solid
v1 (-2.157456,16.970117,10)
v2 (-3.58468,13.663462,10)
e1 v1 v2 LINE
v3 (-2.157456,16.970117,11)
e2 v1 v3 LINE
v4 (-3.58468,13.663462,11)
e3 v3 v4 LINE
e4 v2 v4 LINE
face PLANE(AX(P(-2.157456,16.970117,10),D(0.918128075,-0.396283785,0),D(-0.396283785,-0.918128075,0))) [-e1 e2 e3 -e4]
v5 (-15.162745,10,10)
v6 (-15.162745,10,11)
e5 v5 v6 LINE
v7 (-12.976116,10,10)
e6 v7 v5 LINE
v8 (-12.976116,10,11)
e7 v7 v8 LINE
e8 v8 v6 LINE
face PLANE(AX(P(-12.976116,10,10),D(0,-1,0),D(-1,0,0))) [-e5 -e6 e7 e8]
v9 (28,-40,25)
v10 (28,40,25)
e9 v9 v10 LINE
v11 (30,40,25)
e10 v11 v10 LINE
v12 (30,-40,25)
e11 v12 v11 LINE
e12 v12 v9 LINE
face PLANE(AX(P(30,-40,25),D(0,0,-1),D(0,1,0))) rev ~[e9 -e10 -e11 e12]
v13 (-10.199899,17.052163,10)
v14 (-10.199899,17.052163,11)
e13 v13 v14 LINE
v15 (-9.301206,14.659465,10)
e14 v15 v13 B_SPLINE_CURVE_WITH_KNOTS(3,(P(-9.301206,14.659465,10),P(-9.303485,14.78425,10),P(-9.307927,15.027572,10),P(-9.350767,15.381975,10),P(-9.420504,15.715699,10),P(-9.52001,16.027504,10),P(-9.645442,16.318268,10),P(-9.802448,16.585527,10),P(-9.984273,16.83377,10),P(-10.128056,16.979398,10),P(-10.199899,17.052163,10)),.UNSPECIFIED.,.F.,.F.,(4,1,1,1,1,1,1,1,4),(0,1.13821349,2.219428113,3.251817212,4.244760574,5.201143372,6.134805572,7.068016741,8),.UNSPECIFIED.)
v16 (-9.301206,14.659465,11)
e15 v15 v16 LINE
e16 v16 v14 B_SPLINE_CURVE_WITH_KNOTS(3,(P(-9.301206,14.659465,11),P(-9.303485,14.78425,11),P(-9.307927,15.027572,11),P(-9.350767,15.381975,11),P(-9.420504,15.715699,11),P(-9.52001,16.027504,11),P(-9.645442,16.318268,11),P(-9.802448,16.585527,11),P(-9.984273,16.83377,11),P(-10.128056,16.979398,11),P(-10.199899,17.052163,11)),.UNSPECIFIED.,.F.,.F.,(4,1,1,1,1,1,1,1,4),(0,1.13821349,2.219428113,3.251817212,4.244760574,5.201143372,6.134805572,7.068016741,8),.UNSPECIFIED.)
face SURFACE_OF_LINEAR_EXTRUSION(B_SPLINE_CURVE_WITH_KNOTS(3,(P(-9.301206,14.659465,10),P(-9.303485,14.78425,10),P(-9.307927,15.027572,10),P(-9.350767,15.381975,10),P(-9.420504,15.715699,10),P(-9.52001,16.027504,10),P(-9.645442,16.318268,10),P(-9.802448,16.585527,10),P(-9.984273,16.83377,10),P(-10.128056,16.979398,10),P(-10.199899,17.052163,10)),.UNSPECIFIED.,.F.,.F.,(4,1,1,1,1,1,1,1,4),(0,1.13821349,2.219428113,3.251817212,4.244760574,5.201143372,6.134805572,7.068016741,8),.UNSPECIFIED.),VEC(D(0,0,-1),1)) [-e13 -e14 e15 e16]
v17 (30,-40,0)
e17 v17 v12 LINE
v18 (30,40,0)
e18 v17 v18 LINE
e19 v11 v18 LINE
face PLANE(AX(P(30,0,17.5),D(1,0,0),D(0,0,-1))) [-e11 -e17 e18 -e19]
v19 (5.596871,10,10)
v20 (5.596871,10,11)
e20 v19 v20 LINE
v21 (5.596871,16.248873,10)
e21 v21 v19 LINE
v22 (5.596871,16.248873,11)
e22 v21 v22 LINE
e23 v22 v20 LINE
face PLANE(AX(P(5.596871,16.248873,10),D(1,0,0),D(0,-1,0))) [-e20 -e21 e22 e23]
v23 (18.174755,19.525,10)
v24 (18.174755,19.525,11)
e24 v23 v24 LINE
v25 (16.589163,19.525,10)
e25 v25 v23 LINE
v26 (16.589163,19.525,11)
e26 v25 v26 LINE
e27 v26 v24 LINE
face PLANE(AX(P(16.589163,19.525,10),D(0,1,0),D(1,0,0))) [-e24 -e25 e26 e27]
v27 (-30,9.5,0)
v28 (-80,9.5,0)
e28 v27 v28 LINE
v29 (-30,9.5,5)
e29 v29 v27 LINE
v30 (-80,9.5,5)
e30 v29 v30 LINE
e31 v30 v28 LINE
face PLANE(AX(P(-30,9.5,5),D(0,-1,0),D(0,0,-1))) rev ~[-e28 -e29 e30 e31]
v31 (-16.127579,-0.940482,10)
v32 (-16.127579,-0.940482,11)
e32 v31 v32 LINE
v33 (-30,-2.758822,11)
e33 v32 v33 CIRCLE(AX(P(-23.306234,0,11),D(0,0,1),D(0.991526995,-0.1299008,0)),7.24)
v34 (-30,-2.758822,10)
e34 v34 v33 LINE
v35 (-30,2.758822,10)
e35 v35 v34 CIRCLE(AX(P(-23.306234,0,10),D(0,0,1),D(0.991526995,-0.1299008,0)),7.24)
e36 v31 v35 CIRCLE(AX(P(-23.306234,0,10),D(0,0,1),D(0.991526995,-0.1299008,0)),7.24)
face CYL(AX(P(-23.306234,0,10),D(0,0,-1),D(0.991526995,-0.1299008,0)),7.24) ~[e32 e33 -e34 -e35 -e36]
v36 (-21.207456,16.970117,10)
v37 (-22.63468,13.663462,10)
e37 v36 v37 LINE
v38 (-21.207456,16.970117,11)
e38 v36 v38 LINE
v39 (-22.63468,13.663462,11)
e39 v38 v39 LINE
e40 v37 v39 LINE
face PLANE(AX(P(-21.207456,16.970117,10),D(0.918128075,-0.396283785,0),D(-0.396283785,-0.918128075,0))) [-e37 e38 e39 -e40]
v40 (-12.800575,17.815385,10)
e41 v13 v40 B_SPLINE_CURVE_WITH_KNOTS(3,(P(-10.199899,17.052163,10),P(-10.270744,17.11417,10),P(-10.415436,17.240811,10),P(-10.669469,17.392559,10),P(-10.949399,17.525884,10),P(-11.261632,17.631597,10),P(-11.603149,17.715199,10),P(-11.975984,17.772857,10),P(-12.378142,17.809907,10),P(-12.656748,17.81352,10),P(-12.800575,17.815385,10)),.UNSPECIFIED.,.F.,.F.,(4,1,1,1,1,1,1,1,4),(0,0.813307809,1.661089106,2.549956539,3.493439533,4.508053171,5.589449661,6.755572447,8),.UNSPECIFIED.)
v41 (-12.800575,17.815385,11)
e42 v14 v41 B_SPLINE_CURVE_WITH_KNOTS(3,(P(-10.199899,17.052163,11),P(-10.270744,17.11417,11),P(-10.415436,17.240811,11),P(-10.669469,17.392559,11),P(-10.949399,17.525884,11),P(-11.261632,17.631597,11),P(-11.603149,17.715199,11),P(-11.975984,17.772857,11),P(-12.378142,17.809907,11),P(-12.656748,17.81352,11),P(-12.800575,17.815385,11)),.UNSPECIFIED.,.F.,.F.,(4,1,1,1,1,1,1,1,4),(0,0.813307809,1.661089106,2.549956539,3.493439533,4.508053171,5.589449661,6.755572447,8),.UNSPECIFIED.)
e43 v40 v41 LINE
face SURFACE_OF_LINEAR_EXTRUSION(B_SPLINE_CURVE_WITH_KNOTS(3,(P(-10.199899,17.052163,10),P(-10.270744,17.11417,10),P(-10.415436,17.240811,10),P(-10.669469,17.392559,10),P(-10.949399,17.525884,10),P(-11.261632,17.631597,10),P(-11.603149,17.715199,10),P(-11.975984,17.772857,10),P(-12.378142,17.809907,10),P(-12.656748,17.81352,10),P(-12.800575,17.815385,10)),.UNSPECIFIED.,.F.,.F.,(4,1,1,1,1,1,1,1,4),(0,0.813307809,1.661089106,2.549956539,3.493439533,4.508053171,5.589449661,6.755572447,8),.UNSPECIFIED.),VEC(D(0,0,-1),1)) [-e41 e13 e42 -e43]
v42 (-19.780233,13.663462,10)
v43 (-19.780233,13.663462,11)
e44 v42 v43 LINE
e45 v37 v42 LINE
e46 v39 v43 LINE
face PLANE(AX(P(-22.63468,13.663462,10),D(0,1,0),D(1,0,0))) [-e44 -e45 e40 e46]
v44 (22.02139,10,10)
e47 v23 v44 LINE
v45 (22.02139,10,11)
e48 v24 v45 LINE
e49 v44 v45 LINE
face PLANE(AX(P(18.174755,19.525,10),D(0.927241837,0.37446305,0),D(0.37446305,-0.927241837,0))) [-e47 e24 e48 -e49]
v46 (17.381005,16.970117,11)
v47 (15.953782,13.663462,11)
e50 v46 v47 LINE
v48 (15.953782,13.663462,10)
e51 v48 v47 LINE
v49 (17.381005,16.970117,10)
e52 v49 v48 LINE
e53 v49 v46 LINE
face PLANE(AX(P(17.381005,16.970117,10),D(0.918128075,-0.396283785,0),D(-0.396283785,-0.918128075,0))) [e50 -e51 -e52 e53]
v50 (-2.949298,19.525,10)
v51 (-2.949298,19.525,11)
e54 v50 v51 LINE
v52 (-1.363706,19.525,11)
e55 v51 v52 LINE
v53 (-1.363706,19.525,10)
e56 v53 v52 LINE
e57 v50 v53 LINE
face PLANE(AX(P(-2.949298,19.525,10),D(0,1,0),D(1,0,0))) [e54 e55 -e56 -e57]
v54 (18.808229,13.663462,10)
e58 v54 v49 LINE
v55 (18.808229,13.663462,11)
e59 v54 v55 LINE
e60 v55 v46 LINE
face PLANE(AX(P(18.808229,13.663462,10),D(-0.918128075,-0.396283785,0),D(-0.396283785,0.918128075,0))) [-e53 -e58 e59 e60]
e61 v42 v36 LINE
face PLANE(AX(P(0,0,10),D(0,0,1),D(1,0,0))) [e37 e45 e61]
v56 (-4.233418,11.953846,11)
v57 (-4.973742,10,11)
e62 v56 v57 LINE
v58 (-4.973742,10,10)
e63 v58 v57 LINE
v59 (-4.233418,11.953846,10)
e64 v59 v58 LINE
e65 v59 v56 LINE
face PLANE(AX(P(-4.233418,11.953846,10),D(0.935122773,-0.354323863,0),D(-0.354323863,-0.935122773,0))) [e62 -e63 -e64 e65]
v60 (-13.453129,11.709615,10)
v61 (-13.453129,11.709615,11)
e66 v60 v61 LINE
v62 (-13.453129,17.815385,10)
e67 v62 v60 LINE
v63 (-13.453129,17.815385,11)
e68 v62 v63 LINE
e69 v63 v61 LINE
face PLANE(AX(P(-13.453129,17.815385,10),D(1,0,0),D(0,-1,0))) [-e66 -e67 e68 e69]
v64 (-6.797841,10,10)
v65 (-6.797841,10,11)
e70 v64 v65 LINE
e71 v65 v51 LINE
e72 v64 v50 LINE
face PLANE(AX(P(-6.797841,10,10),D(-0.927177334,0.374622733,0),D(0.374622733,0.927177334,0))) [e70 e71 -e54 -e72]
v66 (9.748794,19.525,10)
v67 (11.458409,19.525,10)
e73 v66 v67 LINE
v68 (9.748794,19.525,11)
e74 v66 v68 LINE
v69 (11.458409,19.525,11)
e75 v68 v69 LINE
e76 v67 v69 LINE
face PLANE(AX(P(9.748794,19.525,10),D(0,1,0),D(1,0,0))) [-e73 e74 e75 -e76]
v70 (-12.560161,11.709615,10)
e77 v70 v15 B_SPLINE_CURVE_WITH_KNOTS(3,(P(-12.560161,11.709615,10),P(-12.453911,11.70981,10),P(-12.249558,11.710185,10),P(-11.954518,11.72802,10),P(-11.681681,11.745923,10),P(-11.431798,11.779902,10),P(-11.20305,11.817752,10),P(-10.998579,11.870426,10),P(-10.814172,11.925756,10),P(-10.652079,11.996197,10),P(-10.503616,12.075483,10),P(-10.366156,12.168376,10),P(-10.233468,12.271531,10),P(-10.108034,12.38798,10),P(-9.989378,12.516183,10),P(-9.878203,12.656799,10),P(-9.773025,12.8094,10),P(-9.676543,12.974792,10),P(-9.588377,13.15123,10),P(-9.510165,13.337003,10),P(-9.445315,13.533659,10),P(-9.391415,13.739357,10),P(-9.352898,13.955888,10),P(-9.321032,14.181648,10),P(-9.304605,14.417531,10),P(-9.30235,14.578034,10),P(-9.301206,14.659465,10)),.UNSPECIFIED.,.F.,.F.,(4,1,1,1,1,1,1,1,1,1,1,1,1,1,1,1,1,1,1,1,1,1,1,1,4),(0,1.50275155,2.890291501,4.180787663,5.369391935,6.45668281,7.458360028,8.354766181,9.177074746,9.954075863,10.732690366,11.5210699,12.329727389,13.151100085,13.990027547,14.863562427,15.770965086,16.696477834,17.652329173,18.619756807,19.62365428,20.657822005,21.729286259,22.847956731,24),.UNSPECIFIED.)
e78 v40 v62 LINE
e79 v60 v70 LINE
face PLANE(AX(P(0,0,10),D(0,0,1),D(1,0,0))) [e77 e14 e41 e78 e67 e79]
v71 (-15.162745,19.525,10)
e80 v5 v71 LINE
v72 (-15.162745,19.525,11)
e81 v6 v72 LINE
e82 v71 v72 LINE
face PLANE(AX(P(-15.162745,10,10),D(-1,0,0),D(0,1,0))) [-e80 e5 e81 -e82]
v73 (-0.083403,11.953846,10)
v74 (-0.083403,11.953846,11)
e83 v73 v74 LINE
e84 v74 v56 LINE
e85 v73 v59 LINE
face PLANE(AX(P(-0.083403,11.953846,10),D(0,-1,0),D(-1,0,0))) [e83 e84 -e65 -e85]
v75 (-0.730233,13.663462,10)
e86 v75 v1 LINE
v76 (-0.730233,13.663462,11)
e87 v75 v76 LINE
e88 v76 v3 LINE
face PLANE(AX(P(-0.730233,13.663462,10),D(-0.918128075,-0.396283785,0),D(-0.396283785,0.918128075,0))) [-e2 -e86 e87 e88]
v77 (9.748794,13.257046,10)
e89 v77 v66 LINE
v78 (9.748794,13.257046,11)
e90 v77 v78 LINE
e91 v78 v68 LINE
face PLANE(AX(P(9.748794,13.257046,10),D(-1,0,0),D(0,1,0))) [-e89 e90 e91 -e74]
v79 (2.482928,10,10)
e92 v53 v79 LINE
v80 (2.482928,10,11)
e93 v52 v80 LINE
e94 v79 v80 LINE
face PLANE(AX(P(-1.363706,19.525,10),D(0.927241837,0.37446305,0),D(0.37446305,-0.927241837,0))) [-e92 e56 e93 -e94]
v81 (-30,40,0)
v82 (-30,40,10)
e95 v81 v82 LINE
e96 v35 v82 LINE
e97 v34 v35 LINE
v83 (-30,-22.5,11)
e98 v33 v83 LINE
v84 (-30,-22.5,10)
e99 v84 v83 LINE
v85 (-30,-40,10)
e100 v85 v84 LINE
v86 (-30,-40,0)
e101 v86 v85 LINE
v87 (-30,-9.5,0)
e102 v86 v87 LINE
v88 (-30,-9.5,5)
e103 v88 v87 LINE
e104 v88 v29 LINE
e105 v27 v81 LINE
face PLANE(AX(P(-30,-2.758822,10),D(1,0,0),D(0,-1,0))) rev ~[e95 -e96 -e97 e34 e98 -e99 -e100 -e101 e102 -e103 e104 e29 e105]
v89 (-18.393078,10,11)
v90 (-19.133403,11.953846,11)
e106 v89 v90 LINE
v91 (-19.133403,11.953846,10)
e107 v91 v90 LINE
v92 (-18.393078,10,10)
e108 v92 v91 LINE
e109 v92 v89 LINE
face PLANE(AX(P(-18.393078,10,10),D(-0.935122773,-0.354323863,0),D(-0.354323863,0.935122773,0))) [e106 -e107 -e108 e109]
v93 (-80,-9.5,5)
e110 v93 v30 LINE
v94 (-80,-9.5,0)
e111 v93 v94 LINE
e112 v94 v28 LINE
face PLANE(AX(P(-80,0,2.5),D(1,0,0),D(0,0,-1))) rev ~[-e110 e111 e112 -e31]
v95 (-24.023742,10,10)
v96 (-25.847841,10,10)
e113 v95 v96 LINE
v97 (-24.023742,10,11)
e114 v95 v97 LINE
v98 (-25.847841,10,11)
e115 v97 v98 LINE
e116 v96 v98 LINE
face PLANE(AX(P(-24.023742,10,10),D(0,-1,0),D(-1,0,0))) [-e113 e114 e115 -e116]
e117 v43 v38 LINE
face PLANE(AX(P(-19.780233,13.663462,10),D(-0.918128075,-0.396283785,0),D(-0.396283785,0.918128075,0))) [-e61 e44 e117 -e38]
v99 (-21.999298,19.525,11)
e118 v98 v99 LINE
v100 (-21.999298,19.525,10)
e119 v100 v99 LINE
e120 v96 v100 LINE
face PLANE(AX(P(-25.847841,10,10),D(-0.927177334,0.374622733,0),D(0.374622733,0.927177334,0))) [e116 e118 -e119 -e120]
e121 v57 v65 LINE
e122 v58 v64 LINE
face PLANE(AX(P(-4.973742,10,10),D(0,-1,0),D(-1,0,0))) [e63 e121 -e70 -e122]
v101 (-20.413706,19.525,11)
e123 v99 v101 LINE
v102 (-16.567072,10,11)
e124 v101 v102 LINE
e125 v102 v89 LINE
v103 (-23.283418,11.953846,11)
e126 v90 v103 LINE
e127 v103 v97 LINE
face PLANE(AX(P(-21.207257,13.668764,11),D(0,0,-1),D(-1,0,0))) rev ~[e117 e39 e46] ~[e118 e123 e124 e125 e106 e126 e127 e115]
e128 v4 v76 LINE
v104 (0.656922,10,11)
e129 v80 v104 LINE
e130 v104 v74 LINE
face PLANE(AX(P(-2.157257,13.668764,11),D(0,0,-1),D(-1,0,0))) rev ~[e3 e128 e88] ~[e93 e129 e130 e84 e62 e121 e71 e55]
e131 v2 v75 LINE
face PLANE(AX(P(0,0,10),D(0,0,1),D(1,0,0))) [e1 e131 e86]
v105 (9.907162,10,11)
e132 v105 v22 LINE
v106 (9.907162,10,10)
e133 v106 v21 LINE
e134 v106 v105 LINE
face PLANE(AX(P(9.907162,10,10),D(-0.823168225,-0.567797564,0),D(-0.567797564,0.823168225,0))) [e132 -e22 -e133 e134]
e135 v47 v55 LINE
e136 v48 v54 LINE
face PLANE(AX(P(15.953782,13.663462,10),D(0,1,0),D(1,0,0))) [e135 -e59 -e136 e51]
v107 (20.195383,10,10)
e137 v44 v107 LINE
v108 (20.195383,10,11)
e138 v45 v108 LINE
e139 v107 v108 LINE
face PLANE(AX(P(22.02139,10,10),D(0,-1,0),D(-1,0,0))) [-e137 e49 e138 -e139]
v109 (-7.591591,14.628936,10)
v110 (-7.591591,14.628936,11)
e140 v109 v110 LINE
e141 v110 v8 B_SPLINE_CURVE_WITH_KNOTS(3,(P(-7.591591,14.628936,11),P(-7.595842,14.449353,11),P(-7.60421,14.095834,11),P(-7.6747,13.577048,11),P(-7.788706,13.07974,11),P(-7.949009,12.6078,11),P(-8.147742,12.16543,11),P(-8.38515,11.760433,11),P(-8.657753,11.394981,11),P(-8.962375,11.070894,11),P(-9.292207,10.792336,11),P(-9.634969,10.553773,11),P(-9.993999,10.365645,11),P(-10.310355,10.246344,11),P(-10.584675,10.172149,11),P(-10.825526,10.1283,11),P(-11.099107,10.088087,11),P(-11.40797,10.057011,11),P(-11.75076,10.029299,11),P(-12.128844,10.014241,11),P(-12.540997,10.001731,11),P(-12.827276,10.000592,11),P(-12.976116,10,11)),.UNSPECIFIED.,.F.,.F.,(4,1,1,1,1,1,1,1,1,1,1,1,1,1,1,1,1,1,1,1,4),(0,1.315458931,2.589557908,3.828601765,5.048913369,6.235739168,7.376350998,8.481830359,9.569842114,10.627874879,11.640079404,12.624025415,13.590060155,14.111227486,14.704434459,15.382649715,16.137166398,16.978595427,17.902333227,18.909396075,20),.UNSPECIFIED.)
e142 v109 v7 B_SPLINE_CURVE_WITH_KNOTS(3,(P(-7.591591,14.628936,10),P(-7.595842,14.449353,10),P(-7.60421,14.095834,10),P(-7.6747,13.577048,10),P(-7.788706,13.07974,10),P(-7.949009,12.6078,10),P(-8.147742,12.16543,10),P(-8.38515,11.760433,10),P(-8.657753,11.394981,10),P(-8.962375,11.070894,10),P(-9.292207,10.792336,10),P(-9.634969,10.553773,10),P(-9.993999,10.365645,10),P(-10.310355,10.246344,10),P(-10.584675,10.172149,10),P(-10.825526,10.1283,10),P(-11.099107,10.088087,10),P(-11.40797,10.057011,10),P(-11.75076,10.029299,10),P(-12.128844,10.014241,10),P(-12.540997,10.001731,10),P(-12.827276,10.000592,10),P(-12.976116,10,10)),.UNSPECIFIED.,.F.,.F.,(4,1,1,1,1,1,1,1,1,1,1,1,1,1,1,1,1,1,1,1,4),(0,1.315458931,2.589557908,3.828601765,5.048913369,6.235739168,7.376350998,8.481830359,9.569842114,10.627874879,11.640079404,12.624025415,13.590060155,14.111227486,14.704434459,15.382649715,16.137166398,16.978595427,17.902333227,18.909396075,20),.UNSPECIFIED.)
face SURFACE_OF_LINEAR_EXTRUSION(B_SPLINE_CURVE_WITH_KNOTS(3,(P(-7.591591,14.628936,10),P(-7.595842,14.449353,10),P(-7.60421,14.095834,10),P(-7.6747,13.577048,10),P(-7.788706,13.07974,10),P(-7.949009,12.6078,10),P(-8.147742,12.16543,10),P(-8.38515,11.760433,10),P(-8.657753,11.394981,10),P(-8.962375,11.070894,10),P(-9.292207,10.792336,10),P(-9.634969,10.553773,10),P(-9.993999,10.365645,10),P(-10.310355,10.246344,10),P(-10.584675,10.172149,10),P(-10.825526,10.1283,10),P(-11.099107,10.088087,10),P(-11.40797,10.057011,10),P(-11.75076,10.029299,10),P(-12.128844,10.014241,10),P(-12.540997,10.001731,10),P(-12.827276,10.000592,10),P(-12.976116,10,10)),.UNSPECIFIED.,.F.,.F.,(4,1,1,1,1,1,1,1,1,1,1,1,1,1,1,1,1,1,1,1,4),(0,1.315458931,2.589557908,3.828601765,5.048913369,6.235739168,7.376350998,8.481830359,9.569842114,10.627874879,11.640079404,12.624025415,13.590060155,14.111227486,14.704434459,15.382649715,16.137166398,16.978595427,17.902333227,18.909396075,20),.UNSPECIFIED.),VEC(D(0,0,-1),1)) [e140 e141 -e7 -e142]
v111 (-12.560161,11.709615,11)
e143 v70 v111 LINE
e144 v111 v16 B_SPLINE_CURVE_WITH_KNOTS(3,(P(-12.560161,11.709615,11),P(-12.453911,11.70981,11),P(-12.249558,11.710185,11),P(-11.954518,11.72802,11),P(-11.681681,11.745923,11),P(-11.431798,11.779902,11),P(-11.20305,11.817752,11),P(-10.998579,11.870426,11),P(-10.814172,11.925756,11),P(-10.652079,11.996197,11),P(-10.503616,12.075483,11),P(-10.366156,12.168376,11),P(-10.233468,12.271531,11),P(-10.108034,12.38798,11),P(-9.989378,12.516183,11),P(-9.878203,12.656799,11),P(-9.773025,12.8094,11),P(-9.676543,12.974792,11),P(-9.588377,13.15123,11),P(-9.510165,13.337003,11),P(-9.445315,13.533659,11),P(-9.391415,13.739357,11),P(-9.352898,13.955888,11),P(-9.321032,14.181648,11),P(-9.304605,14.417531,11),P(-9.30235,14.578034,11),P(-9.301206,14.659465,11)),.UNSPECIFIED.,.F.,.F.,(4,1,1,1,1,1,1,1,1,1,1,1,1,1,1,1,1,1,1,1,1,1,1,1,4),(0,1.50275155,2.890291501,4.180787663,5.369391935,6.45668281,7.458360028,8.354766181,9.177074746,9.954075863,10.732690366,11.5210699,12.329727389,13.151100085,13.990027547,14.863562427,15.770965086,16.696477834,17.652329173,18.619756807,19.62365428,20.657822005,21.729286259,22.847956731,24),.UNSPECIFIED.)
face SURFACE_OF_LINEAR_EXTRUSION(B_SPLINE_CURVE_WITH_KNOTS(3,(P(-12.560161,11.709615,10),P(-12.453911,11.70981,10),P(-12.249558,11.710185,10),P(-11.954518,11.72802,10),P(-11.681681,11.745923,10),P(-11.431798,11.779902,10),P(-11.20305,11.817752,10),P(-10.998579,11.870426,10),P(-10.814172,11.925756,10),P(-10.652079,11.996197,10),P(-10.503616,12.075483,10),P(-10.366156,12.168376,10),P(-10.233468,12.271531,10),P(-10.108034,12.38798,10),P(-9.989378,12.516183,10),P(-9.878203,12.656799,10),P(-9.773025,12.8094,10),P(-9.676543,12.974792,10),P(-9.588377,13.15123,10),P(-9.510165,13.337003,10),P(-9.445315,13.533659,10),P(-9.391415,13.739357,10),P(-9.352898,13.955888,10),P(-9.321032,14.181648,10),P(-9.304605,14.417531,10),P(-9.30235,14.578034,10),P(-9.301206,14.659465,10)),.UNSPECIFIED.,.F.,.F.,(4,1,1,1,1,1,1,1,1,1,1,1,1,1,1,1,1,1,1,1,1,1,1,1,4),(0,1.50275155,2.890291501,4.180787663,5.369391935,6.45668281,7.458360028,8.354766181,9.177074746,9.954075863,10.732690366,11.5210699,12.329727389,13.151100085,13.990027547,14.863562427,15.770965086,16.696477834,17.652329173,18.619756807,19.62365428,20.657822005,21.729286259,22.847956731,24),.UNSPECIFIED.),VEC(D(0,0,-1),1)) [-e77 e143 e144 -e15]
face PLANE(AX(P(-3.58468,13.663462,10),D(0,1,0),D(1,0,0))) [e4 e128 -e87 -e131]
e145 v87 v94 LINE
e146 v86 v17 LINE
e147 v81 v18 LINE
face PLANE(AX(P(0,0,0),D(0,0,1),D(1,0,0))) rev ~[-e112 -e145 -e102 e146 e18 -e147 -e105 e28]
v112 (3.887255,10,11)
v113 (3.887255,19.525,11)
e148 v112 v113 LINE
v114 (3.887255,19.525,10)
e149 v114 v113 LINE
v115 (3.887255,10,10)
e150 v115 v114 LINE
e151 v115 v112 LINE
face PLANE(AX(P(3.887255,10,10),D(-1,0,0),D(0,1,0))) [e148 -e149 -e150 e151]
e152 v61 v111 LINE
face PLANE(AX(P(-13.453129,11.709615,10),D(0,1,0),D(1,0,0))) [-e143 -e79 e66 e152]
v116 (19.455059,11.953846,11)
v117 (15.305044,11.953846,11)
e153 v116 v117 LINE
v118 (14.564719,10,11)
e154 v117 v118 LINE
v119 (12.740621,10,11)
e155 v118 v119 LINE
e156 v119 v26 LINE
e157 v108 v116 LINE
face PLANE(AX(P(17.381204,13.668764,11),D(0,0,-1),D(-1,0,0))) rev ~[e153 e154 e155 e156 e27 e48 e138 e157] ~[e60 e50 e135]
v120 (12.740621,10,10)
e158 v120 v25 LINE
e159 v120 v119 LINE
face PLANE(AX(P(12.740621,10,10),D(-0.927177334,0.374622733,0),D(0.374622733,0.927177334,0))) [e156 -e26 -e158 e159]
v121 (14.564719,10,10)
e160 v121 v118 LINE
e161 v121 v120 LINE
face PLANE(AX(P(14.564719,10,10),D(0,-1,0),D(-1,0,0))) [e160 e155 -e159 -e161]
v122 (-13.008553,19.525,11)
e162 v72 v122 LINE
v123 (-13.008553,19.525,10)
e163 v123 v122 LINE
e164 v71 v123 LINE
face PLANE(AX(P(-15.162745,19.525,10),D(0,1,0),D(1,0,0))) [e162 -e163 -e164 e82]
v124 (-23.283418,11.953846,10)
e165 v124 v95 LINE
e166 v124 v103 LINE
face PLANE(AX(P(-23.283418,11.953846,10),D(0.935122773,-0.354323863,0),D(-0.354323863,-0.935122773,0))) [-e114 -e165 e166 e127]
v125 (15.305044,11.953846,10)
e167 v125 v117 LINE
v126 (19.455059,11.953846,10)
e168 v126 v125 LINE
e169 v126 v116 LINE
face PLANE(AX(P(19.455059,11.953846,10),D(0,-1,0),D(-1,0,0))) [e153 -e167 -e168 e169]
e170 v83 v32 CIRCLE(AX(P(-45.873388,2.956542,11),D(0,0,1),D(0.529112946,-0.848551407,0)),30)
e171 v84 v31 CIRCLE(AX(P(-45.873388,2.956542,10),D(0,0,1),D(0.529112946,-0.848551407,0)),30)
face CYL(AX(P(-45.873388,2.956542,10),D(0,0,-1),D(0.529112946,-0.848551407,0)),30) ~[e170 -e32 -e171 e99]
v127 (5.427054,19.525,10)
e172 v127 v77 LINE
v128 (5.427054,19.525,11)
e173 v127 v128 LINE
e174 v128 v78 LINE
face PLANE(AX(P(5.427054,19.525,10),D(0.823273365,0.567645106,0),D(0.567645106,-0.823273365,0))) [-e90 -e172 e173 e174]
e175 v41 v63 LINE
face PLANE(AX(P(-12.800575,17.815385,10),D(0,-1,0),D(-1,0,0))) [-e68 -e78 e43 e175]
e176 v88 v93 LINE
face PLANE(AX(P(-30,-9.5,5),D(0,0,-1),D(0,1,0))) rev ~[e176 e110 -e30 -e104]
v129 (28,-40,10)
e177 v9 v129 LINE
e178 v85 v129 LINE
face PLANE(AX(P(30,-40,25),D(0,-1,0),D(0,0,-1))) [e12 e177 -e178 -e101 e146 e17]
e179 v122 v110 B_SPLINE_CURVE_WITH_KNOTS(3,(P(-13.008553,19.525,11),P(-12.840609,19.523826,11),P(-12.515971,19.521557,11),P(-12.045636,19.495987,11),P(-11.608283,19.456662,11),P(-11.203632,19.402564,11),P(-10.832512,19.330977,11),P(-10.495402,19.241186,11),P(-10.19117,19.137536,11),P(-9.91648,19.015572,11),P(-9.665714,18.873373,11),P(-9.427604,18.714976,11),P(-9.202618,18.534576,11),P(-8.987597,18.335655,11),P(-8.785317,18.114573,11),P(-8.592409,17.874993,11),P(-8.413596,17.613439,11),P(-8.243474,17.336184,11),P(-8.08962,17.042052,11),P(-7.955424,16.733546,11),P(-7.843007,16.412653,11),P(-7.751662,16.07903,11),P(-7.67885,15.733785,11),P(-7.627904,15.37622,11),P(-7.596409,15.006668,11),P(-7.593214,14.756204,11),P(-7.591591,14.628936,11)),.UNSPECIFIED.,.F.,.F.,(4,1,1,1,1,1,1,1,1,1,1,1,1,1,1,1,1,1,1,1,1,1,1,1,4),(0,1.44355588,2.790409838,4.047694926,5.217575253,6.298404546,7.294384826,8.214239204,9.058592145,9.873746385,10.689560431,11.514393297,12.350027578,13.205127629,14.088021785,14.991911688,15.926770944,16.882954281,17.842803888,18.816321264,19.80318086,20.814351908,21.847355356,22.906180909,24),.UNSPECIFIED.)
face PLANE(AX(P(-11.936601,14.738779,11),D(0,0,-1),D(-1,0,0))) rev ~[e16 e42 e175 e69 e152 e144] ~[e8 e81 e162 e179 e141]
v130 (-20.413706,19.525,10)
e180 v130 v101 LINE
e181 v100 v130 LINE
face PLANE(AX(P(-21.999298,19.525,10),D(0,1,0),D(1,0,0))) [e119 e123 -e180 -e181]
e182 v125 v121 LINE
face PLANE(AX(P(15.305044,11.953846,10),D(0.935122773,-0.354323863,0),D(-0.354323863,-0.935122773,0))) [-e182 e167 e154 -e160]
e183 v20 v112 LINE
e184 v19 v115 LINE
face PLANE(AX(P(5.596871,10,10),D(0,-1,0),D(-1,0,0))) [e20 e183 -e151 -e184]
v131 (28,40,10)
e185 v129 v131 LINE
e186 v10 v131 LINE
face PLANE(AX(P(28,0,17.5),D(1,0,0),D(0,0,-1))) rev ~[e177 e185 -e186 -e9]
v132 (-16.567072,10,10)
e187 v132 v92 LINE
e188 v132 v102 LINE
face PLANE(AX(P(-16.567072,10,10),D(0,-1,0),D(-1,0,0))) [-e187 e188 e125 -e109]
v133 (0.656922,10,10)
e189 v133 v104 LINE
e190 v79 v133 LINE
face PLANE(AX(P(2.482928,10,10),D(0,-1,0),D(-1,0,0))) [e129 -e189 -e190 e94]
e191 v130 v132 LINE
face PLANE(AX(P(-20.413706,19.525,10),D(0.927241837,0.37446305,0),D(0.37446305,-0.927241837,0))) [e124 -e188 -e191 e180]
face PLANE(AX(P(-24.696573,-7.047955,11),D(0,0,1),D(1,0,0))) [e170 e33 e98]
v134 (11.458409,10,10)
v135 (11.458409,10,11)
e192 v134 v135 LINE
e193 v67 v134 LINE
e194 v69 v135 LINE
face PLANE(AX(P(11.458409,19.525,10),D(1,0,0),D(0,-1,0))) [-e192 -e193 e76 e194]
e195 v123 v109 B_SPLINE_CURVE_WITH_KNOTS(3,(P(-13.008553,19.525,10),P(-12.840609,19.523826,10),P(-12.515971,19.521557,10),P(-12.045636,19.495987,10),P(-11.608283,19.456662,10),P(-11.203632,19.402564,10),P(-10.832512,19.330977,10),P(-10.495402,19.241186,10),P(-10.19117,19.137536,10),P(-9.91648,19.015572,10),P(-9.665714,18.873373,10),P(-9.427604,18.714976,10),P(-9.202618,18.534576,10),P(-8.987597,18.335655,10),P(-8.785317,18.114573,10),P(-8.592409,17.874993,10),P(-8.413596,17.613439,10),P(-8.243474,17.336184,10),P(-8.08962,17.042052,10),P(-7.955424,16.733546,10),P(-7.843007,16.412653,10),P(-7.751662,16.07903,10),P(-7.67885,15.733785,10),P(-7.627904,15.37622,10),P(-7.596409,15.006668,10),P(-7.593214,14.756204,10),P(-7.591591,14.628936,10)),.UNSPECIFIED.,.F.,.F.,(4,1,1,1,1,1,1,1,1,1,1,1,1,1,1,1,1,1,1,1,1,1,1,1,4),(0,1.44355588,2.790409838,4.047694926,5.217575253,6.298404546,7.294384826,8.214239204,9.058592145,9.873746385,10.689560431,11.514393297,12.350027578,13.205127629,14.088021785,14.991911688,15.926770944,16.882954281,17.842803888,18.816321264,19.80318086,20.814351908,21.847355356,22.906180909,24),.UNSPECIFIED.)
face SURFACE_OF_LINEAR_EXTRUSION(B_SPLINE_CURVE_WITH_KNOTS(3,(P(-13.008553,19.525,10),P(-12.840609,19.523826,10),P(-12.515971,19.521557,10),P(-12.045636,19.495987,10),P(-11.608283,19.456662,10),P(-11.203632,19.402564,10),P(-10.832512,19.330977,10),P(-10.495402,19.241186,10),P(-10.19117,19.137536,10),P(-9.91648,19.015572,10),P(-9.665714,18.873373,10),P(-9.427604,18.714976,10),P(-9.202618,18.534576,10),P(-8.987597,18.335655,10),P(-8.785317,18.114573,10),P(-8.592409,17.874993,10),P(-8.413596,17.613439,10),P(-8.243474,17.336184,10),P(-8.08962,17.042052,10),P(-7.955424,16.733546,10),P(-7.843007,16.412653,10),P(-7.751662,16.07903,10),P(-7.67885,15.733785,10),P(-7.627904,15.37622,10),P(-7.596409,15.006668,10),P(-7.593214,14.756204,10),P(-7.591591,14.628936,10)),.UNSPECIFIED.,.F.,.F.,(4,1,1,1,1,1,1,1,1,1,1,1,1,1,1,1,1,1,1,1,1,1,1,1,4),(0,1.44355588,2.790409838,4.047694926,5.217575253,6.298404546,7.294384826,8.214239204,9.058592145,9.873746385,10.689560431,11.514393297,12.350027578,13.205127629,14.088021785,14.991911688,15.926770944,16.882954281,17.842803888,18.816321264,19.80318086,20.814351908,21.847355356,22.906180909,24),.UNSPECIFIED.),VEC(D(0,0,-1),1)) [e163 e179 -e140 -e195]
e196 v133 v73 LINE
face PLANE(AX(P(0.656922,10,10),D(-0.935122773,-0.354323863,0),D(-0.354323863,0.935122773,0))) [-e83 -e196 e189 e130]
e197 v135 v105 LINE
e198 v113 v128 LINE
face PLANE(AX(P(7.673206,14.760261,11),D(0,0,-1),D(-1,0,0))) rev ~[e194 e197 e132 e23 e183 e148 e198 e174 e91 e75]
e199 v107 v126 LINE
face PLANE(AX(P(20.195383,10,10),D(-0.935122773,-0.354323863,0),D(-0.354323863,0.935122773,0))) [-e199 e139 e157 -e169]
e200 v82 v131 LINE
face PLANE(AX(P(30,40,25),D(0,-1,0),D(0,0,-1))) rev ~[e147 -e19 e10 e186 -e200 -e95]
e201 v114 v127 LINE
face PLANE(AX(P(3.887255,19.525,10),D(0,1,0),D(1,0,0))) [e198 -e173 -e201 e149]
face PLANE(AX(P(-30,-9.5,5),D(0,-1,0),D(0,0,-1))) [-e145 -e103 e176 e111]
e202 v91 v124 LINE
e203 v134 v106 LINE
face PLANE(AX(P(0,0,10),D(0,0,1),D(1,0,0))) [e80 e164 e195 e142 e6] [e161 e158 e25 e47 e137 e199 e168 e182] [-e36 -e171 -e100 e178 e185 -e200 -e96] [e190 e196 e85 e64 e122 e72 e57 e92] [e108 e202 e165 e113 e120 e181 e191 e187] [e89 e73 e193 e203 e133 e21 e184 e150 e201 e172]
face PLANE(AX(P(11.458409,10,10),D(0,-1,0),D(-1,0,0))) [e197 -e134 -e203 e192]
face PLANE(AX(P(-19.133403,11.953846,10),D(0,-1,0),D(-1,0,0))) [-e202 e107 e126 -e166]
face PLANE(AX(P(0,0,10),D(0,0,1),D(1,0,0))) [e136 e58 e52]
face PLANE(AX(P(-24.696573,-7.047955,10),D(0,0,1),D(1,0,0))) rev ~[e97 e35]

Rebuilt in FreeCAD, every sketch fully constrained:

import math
import FreeCAD as App
import Part
import Sketcher
from FreeCAD import Vector
Q = App.Units.Quantity

doc = App.newDocument("Part")
body = doc.addObject("PartDesign::Body", "Body")

sketch1 = body.newObject("Sketcher::SketchObject", "Sketch")
sketch1.AttachmentSupport = (doc.getObject("XY_Plane"), [""])
sketch1.MapMode = "FlatFace"
sketch1.addGeometry([
    Part.LineSegment(Vector(-30, 40, 0), Vector(-30, -40, 0)),
    Part.LineSegment(Vector(-30, -40, 0), Vector(30, -40, 0)),
    Part.LineSegment(Vector(30, -40, 0), Vector(30, 40, 0)),
    Part.LineSegment(Vector(30, 40, 0), Vector(-30, 40, 0)),
], False)
sketch1.addConstraint([
    Sketcher.Constraint("Coincident", 0, 2, 1, 1),
    Sketcher.Constraint("Coincident", 1, 2, 2, 1),
    Sketcher.Constraint("Coincident", 2, 2, 3, 1),
    Sketcher.Constraint("Coincident", 3, 2, 0, 1),
    Sketcher.Constraint("Vertical", 0),
    Sketcher.Constraint("Horizontal", 1),
    Sketcher.Constraint("Vertical", 2),
    Sketcher.Constraint("Horizontal", 3),
    Sketcher.Constraint("Symmetric", 0, 2, 2, 2, -1, 1),
    Sketcher.Constraint("DistanceX", 1, 1, 1, 2, Q("60 mm")),
    Sketcher.Constraint("DistanceY", 0, 2, 0, 1, Q("80 mm")),
])
pad1 = body.newObject("PartDesign::Pad", "Pad")
pad1.Profile = sketch1
pad1.Length = 10

sketch2 = body.newObject("Sketcher::SketchObject", "Sketch001")
sketch2.AttachmentSupport = (doc.getObject("YZ_Plane"), [""])
sketch2.MapMode = "FlatFace"
sketch2.AttachmentOffset = App.Placement(Vector(0, 0, -30), App.Rotation())
sketch2.addGeometry([
    Part.LineSegment(Vector(10, 5, 0), Vector(-10, 5, 0)),
    Part.LineSegment(Vector(-10, 5, 0), Vector(-10, 0, 0)),
    Part.LineSegment(Vector(-10, 0, 0), Vector(10, 0, 0)),
    Part.LineSegment(Vector(10, 0, 0), Vector(10, 5, 0)),
], False)
sketch2.addConstraint([
    Sketcher.Constraint("Coincident", 0, 2, 1, 1),
    Sketcher.Constraint("Coincident", 1, 2, 2, 1),
    Sketcher.Constraint("Coincident", 2, 2, 3, 1),
    Sketcher.Constraint("Coincident", 3, 2, 0, 1),
    Sketcher.Constraint("Horizontal", 0),
    Sketcher.Constraint("Vertical", 1),
    Sketcher.Constraint("Horizontal", 2),
    Sketcher.Constraint("Vertical", 3),
    Sketcher.Constraint("Symmetric", 1, 2, 2, 2, -1, 1),
    Sketcher.Constraint("DistanceX", 0, 2, 0, 1, Q("19 mm")),
    Sketcher.Constraint("DistanceY", 1, 2, 1, 1, Q("5 mm")),
])
pad2 = body.newObject("PartDesign::Pad", "Pad001")
pad2.Profile = sketch2
pad2.Length = 50
pad2.Reversed = True

sketch3 = body.newObject("Sketcher::SketchObject", "Sketch002")
sketch3.AttachmentSupport = (doc.getObject("YZ_Plane"), [""])
sketch3.MapMode = "FlatFace"
sketch3.AttachmentOffset = App.Placement(Vector(0, 0, 30), App.Rotation())
sketch3.addGeometry([
    Part.LineSegment(Vector(40, 25, 0), Vector(-40, 25, 0)),
    Part.LineSegment(Vector(-40, 25, 0), Vector(-40, 10, 0)),
    Part.LineSegment(Vector(-40, 10, 0), Vector(40, 10, 0)),
    Part.LineSegment(Vector(40, 10, 0), Vector(40, 25, 0)),
], False)
sketch3.addConstraint([
    Sketcher.Constraint("Coincident", 0, 2, 1, 1),
    Sketcher.Constraint("Coincident", 1, 2, 2, 1),
    Sketcher.Constraint("Coincident", 2, 2, 3, 1),
    Sketcher.Constraint("Coincident", 3, 2, 0, 1),
    Sketcher.Constraint("Horizontal", 0),
    Sketcher.Constraint("Vertical", 1),
    Sketcher.Constraint("Horizontal", 2),
    Sketcher.Constraint("Vertical", 3),
    Sketcher.Constraint("DistanceX", 0, 2, 0, 1, Q("80 mm")),
    Sketcher.Constraint("DistanceY", 1, 2, 1, 1, Q("15 mm")),
    Sketcher.Constraint("DistanceX", 0, 2, -1, 1, Q("40 mm")),
    Sketcher.Constraint("DistanceY", -1, 1, 0, 2, Q("25 mm")),
])
pad3 = body.newObject("PartDesign::Pad", "Pad002")
pad3.Profile = sketch3
pad3.Length = 2
pad3.Reversed = True

sketch4 = body.newObject("Sketcher::SketchObject", "Sketch003")
sketch4.AttachmentSupport = (doc.getObject("XY_Plane"), [""])
sketch4.MapMode = "FlatFace"
sketch4.AttachmentOffset = App.Placement(Vector(0, 0, 10), App.Rotation())
sketch4.addGeometry([
    Part.LineSegment(Vector(-30, -2.758822, 0), Vector(-30, -22.5, 0)),
    Part.ArcOfCircle(Part.Circle(Vector(-45.873388, 2.956542, 0), Vector(0, 0, 1), 30), math.radians(-58.05446), math.radians(-7.46386)),
    Part.ArcOfCircle(Part.Circle(Vector(-23.306234, 0, 0), Vector(0, 0, 1), 7.24), math.radians(-7.46386), math.radians(202.398905)),
    Part.LineSegment(Vector(-20.413706, 19.525, 0), Vector(-21.999298, 19.525, 0)),
    Part.LineSegment(Vector(-21.999298, 19.525, 0), Vector(-25.847841, 10, 0)),
    Part.LineSegment(Vector(-25.847841, 10, 0), Vector(-24.023742, 10, 0)),
    Part.LineSegment(Vector(-24.023742, 10, 0), Vector(-23.283418, 11.953846, 0)),
    Part.LineSegment(Vector(-23.283418, 11.953846, 0), Vector(-19.133403, 11.953846, 0)),
    Part.LineSegment(Vector(-19.133403, 11.953846, 0), Vector(-18.393078, 10, 0)),
    Part.LineSegment(Vector(-18.393078, 10, 0), Vector(-16.567072, 10, 0)),
    Part.LineSegment(Vector(-16.567072, 10, 0), Vector(-20.413706, 19.525, 0)),
    Part.LineSegment(Vector(-21.207456, 16.970117, 0), Vector(-19.780233, 13.663462, 0)),
    Part.LineSegment(Vector(-19.780233, 13.663462, 0), Vector(-22.63468, 13.663462, 0)),
    Part.LineSegment(Vector(-22.63468, 13.663462, 0), Vector(-21.207456, 16.970117, 0)),
    Part.LineSegment(Vector(-13.008553, 19.525, 0), Vector(-15.162745, 19.525, 0)),
    Part.LineSegment(Vector(-15.162745, 19.525, 0), Vector(-15.162745, 10, 0)),
    Part.LineSegment(Vector(-15.162745, 10, 0), Vector(-12.976116, 10, 0)),
    Part.BSplineCurve([Vector(-7.591591, 14.628936, 0), Vector(-7.595842, 14.449353, 0), Vector(-7.60421, 14.095834, 0), Vector(-7.6747, 13.577048, 0), Vector(-7.788706, 13.07974, 0), Vector(-7.949009, 12.6078, 0), Vector(-8.147742, 12.16543, 0), Vector(-8.38515, 11.760433, 0), Vector(-8.657753, 11.394981, 0), Vector(-8.962375, 11.070894, 0), Vector(-9.292207, 10.792336, 0), Vector(-9.634969, 10.553773, 0), Vector(-9.993999, 10.365645, 0), Vector(-10.310355, 10.246344, 0), Vector(-10.584675, 10.172149, 0), Vector(-10.825526, 10.1283, 0), Vector(-11.099107, 10.088087, 0), Vector(-11.40797, 10.057011, 0), Vector(-11.75076, 10.029299, 0), Vector(-12.128844, 10.014241, 0), Vector(-12.540997, 10.001731, 0), Vector(-12.827276, 10.000592, 0), Vector(-12.976116, 10, 0)], [4, 1, 1, 1, 1, 1, 1, 1, 1, 1, 1, 1, 1, 1, 1, 1, 1, 1, 1, 1, 4], [0, 1.315458931, 2.589557908, 3.828601765, 5.048913369, 6.235739168, 7.376350998, 8.481830359, 9.569842114, 10.627874879, 11.640079404, 12.624025415, 13.590060155, 14.111227486, 14.704434459, 15.382649715, 16.137166398, 16.978595427, 17.902333227, 18.909396075, 20], False, 3, [1, 1, 1, 1, 1, 1, 1, 1, 1, 1, 1, 1, 1, 1, 1, 1, 1, 1, 1, 1, 1, 1, 1], False),
    Part.BSplineCurve([Vector(-13.008553, 19.525, 0), Vector(-12.840609, 19.523826, 0), Vector(-12.515971, 19.521557, 0), Vector(-12.045636, 19.495987, 0), Vector(-11.608283, 19.456662, 0), Vector(-11.203632, 19.402564, 0), Vector(-10.832512, 19.330977, 0), Vector(-10.495402, 19.241186, 0), Vector(-10.19117, 19.137536, 0), Vector(-9.91648, 19.015572, 0), Vector(-9.665714, 18.873373, 0), Vector(-9.427604, 18.714976, 0), Vector(-9.202618, 18.534576, 0), Vector(-8.987597, 18.335655, 0), Vector(-8.785317, 18.114573, 0), Vector(-8.592409, 17.874993, 0), Vector(-8.413596, 17.613439, 0), Vector(-8.243474, 17.336184, 0), Vector(-8.08962, 17.042052, 0), Vector(-7.955424, 16.733546, 0), Vector(-7.843007, 16.412653, 0), Vector(-7.751662, 16.07903, 0), Vector(-7.67885, 15.733785, 0), Vector(-7.627904, 15.37622, 0), Vector(-7.596409, 15.006668, 0), Vector(-7.593214, 14.756204, 0), Vector(-7.591591, 14.628936, 0)], [4, 1, 1, 1, 1, 1, 1, 1, 1, 1, 1, 1, 1, 1, 1, 1, 1, 1, 1, 1, 1, 1, 1, 1, 4], [0, 1.44355588, 2.790409838, 4.047694926, 5.217575253, 6.298404546, 7.294384826, 8.214239204, 9.058592145, 9.873746385, 10.689560431, 11.514393297, 12.350027578, 13.205127629, 14.088021785, 14.991911688, 15.926770944, 16.882954281, 17.842803888, 18.816321264, 19.80318086, 20.814351908, 21.847355356, 22.906180909, 24], False, 3, [1, 1, 1, 1, 1, 1, 1, 1, 1, 1, 1, 1, 1, 1, 1, 1, 1, 1, 1, 1, 1, 1, 1, 1, 1, 1, 1], False),
    Part.LineSegment(Vector(-13.453129, 17.815385, 0), Vector(-12.800575, 17.815385, 0)),
    Part.BSplineCurve([Vector(-10.199899, 17.052163, 0), Vector(-10.270744, 17.11417, 0), Vector(-10.415436, 17.240811, 0), Vector(-10.669469, 17.392559, 0), Vector(-10.949399, 17.525884, 0), Vector(-11.261632, 17.631597, 0), Vector(-11.603149, 17.715199, 0), Vector(-11.975984, 17.772857, 0), Vector(-12.378142, 17.809907, 0), Vector(-12.656748, 17.81352, 0), Vector(-12.800575, 17.815385, 0)], [4, 1, 1, 1, 1, 1, 1, 1, 4], [0, 0.813307809, 1.661089106, 2.549956539, 3.493439533, 4.508053171, 5.589449661, 6.755572447, 8], False, 3, [1, 1, 1, 1, 1, 1, 1, 1, 1, 1, 1], False),
    Part.BSplineCurve([Vector(-9.301206, 14.659465, 0), Vector(-9.303485, 14.78425, 0), Vector(-9.307927, 15.027572, 0), Vector(-9.350767, 15.381975, 0), Vector(-9.420504, 15.715699, 0), Vector(-9.52001, 16.027504, 0), Vector(-9.645442, 16.318268, 0), Vector(-9.802448, 16.585527, 0), Vector(-9.984273, 16.83377, 0), Vector(-10.128056, 16.979398, 0), Vector(-10.199899, 17.052163, 0)], [4, 1, 1, 1, 1, 1, 1, 1, 4], [0, 1.13821349, 2.219428113, 3.251817212, 4.244760574, 5.201143372, 6.134805572, 7.068016741, 8], False, 3, [1, 1, 1, 1, 1, 1, 1, 1, 1, 1, 1], False),
    Part.BSplineCurve([Vector(-12.560161, 11.709615, 0), Vector(-12.453911, 11.70981, 0), Vector(-12.249558, 11.710185, 0), Vector(-11.954518, 11.72802, 0), Vector(-11.681681, 11.745923, 0), Vector(-11.431798, 11.779902, 0), Vector(-11.20305, 11.817752, 0), Vector(-10.998579, 11.870426, 0), Vector(-10.814172, 11.925756, 0), Vector(-10.652079, 11.996197, 0), Vector(-10.503616, 12.075483, 0), Vector(-10.366156, 12.168376, 0), Vector(-10.233468, 12.271531, 0), Vector(-10.108034, 12.38798, 0), Vector(-9.989378, 12.516183, 0), Vector(-9.878203, 12.656799, 0), Vector(-9.773025, 12.8094, 0), Vector(-9.676543, 12.974792, 0), Vector(-9.588377, 13.15123, 0), Vector(-9.510165, 13.337003, 0), Vector(-9.445315, 13.533659, 0), Vector(-9.391415, 13.739357, 0), Vector(-9.352898, 13.955888, 0), Vector(-9.321032, 14.181648, 0), Vector(-9.304605, 14.417531, 0), Vector(-9.30235, 14.578034, 0), Vector(-9.301206, 14.659465, 0)], [4, 1, 1, 1, 1, 1, 1, 1, 1, 1, 1, 1, 1, 1, 1, 1, 1, 1, 1, 1, 1, 1, 1, 1, 4], [0, 1.50275155, 2.890291501, 4.180787663, 5.369391935, 6.45668281, 7.458360028, 8.354766181, 9.177074746, 9.954075863, 10.732690366, 11.5210699, 12.329727389, 13.151100085, 13.990027547, 14.863562427, 15.770965086, 16.696477834, 17.652329173, 18.619756807, 19.62365428, 20.657822005, 21.729286259, 22.847956731, 24], False, 3, [1, 1, 1, 1, 1, 1, 1, 1, 1, 1, 1, 1, 1, 1, 1, 1, 1, 1, 1, 1, 1, 1, 1, 1, 1, 1, 1], False),
    Part.LineSegment(Vector(-12.560161, 11.709615, 0), Vector(-13.453129, 11.709615, 0)),
    Part.LineSegment(Vector(-13.453129, 11.709615, 0), Vector(-13.453129, 17.815385, 0)),
    Part.LineSegment(Vector(-1.363706, 19.525, 0), Vector(-2.949298, 19.525, 0)),
    Part.LineSegment(Vector(-2.949298, 19.525, 0), Vector(-6.797841, 10, 0)),
    Part.LineSegment(Vector(-6.797841, 10, 0), Vector(-4.973742, 10, 0)),
    Part.LineSegment(Vector(-4.973742, 10, 0), Vector(-4.233418, 11.953846, 0)),
    Part.LineSegment(Vector(-4.233418, 11.953846, 0), Vector(-0.083403, 11.953846, 0)),
    Part.LineSegment(Vector(-0.083403, 11.953846, 0), Vector(0.656922, 10, 0)),
    Part.LineSegment(Vector(0.656922, 10, 0), Vector(2.482928, 10, 0)),
    Part.LineSegment(Vector(2.482928, 10, 0), Vector(-1.363706, 19.525, 0)),
    Part.LineSegment(Vector(-2.157456, 16.970117, 0), Vector(-0.730233, 13.663462, 0)),
    Part.LineSegment(Vector(-0.730233, 13.663462, 0), Vector(-3.58468, 13.663462, 0)),
    Part.LineSegment(Vector(-3.58468, 13.663462, 0), Vector(-2.157456, 16.970117, 0)),
    Part.LineSegment(Vector(5.427054, 19.525, 0), Vector(3.887255, 19.525, 0)),
    Part.LineSegment(Vector(3.887255, 19.525, 0), Vector(3.887255, 10, 0)),
    Part.LineSegment(Vector(3.887255, 10, 0), Vector(5.596871, 10, 0)),
    Part.LineSegment(Vector(5.596871, 10, 0), Vector(5.596871, 16.248873, 0)),
    Part.LineSegment(Vector(5.596871, 16.248873, 0), Vector(9.907162, 10, 0)),
    Part.LineSegment(Vector(9.907162, 10, 0), Vector(11.458409, 10, 0)),
    Part.LineSegment(Vector(11.458409, 10, 0), Vector(11.458409, 19.525, 0)),
    Part.LineSegment(Vector(11.458409, 19.525, 0), Vector(9.748794, 19.525, 0)),
    Part.LineSegment(Vector(9.748794, 19.525, 0), Vector(9.748794, 13.257046, 0)),
    Part.LineSegment(Vector(9.748794, 13.257046, 0), Vector(5.427054, 19.525, 0)),
    Part.LineSegment(Vector(18.174755, 19.525, 0), Vector(16.589163, 19.525, 0)),
    Part.LineSegment(Vector(16.589163, 19.525, 0), Vector(12.740621, 10, 0)),
    Part.LineSegment(Vector(12.740621, 10, 0), Vector(14.564719, 10, 0)),
    Part.LineSegment(Vector(14.564719, 10, 0), Vector(15.305044, 11.953846, 0)),
    Part.LineSegment(Vector(15.305044, 11.953846, 0), Vector(19.455059, 11.953846, 0)),
    Part.LineSegment(Vector(19.455059, 11.953846, 0), Vector(20.195383, 10, 0)),
    Part.LineSegment(Vector(20.195383, 10, 0), Vector(22.02139, 10, 0)),
    Part.LineSegment(Vector(22.02139, 10, 0), Vector(18.174755, 19.525, 0)),
    Part.LineSegment(Vector(17.381005, 16.970117, 0), Vector(18.808229, 13.663462, 0)),
    Part.LineSegment(Vector(18.808229, 13.663462, 0), Vector(15.953782, 13.663462, 0)),
    Part.LineSegment(Vector(15.953782, 13.663462, 0), Vector(17.381005, 16.970117, 0)),
], False)
sketch4.addConstraint([
    Sketcher.Constraint("Block", 17),
    Sketcher.Constraint("Block", 18),
    Sketcher.Constraint("Block", 20),
    Sketcher.Constraint("Block", 21),
    Sketcher.Constraint("Block", 22),
    Sketcher.Constraint("Coincident", 0, 2, 1, 1),
    Sketcher.Constraint("Coincident", 1, 2, 2, 1),
    Sketcher.Constraint("Coincident", 2, 2, 0, 1),
    Sketcher.Constraint("Coincident", 3, 2, 4, 1),
    Sketcher.Constraint("Coincident", 4, 2, 5, 1),
    Sketcher.Constraint("Coincident", 5, 2, 6, 1),
    Sketcher.Constraint("Coincident", 6, 2, 7, 1),
    Sketcher.Constraint("Coincident", 7, 2, 8, 1),
    Sketcher.Constraint("Coincident", 8, 2, 9, 1),
    Sketcher.Constraint("Coincident", 9, 2, 10, 1),
    Sketcher.Constraint("Coincident", 10, 2, 3, 1),
    Sketcher.Constraint("Coincident", 11, 2, 12, 1),
    Sketcher.Constraint("Coincident", 12, 2, 13, 1),
    Sketcher.Constraint("Coincident", 13, 2, 11, 1),
    Sketcher.Constraint("Coincident", 14, 2, 15, 1),
    Sketcher.Constraint("Coincident", 15, 2, 16, 1),
    Sketcher.Constraint("Coincident", 16, 2, 17, 2),
    Sketcher.Constraint("Coincident", 18, 1, 14, 1),
    Sketcher.Constraint("Coincident", 19, 2, 20, 2),
    Sketcher.Constraint("Coincident", 22, 1, 23, 1),
    Sketcher.Constraint("Coincident", 23, 2, 24, 1),
    Sketcher.Constraint("Coincident", 24, 2, 19, 1),
    Sketcher.Constraint("Coincident", 25, 2, 26, 1),
    Sketcher.Constraint("Coincident", 26, 2, 27, 1),
    Sketcher.Constraint("Coincident", 27, 2, 28, 1),
    Sketcher.Constraint("Coincident", 28, 2, 29, 1),
    Sketcher.Constraint("Coincident", 29, 2, 30, 1),
    Sketcher.Constraint("Coincident", 30, 2, 31, 1),
    Sketcher.Constraint("Coincident", 31, 2, 32, 1),
    Sketcher.Constraint("Coincident", 32, 2, 25, 1),
    Sketcher.Constraint("Coincident", 33, 2, 34, 1),
    Sketcher.Constraint("Coincident", 34, 2, 35, 1),
    Sketcher.Constraint("Coincident", 35, 2, 33, 1),
    Sketcher.Constraint("Coincident", 36, 2, 37, 1),
    Sketcher.Constraint("Coincident", 37, 2, 38, 1),
    Sketcher.Constraint("Coincident", 38, 2, 39, 1),
    Sketcher.Constraint("Coincident", 39, 2, 40, 1),
    Sketcher.Constraint("Coincident", 40, 2, 41, 1),
    Sketcher.Constraint("Coincident", 41, 2, 42, 1),
    Sketcher.Constraint("Coincident", 42, 2, 43, 1),
    Sketcher.Constraint("Coincident", 43, 2, 44, 1),
    Sketcher.Constraint("Coincident", 44, 2, 45, 1),
    Sketcher.Constraint("Coincident", 45, 2, 36, 1),
    Sketcher.Constraint("Coincident", 46, 2, 47, 1),
    Sketcher.Constraint("Coincident", 47, 2, 48, 1),
    Sketcher.Constraint("Coincident", 48, 2, 49, 1),
    Sketcher.Constraint("Coincident", 49, 2, 50, 1),
    Sketcher.Constraint("Coincident", 50, 2, 51, 1),
    Sketcher.Constraint("Coincident", 51, 2, 52, 1),
    Sketcher.Constraint("Coincident", 52, 2, 53, 1),
    Sketcher.Constraint("Coincident", 53, 2, 46, 1),
    Sketcher.Constraint("Coincident", 54, 2, 55, 1),
    Sketcher.Constraint("Coincident", 55, 2, 56, 1),
    Sketcher.Constraint("Coincident", 56, 2, 54, 1),
    Sketcher.Constraint("Vertical", 0),
    Sketcher.Constraint("Horizontal", 3),
    Sketcher.Constraint("Horizontal", 5),
    Sketcher.Constraint("Horizontal", 7),
    Sketcher.Constraint("Horizontal", 9),
    Sketcher.Constraint("Horizontal", 12),
    Sketcher.Constraint("Horizontal", 14),
    Sketcher.Constraint("Vertical", 15),
    Sketcher.Constraint("Horizontal", 16),
    Sketcher.Constraint("Horizontal", 19),
    Sketcher.Constraint("Horizontal", 23),
    Sketcher.Constraint("Vertical", 24),
    Sketcher.Constraint("Horizontal", 25),
    Sketcher.Constraint("Horizontal", 27),
    Sketcher.Constraint("Horizontal", 29),
    Sketcher.Constraint("Horizontal", 31),
    Sketcher.Constraint("Horizontal", 34),
    Sketcher.Constraint("Horizontal", 36),
    Sketcher.Constraint("Vertical", 37),
    Sketcher.Constraint("Horizontal", 38),
    Sketcher.Constraint("Vertical", 39),
    Sketcher.Constraint("Horizontal", 41),
    Sketcher.Constraint("Vertical", 42),
    Sketcher.Constraint("Horizontal", 43),
    Sketcher.Constraint("Vertical", 44),
    Sketcher.Constraint("Horizontal", 46),
    Sketcher.Constraint("Horizontal", 48),
    Sketcher.Constraint("Horizontal", 50),
    Sketcher.Constraint("Horizontal", 52),
    Sketcher.Constraint("Horizontal", 55),
    Sketcher.Constraint("PointOnObject", 2, 3, -1),
    Sketcher.Constraint("Radius", 1, Q("30 mm")),
    Sketcher.Constraint("Radius", 2, Q("7.24 mm")),
    Sketcher.Constraint("DistanceX", 0, 2, -1, 1, Q("30 mm")),
    Sketcher.Constraint("DistanceY", -1, 1, 4, 2, Q("10 mm")),
    Sketcher.Constraint("DistanceY", -1, 1, 8, 2, Q("10 mm")),
    Sketcher.Constraint("DistanceY", -1, 1, 26, 2, Q("10 mm")),
    Sketcher.Constraint("DistanceY", -1, 1, 30, 2, Q("10 mm")),
    Sketcher.Constraint("DistanceY", -1, 1, 37, 2, Q("10 mm")),
    Sketcher.Constraint("DistanceY", -1, 1, 40, 2, Q("10 mm")),
    Sketcher.Constraint("DistanceY", -1, 1, 47, 2, Q("10 mm")),
    Sketcher.Constraint("DistanceY", -1, 1, 51, 2, Q("10 mm")),
    Sketcher.Constraint("DistanceY", 0, 2, -1, 1, Q("22.5 mm")),
    Sketcher.Constraint("DistanceY", 37, 2, 37, 1, Q("9.525 mm")),
    Sketcher.Constraint("DistanceY", 42, 1, 42, 2, Q("9.525 mm")),
    Sketcher.Constraint("DistanceX", 5, 1, 5, 2, Q("1.824099 mm")),
    Sketcher.Constraint("DistanceX", 27, 1, 27, 2, Q("1.824099 mm")),
    Sketcher.Constraint("DistanceX", 36, 2, 36, 1, Q("1.539799 mm")),
    Sketcher.Constraint("DistanceX", 48, 1, 48, 2, Q("1.824099 mm")),
    Sketcher.Constraint("DistanceY", -1, 1, 3, 2, Q("19.525 mm")),
    Sketcher.Constraint("DistanceY", -1, 1, 25, 2, Q("19.525 mm")),
    Sketcher.Constraint("DistanceY", -1, 1, 46, 2, Q("19.525 mm")),
    Sketcher.Constraint("Distance", 6, Q("2.089401 mm")),
    Sketcher.Constraint("Distance", 8, Q("2.089401 mm")),
    Sketcher.Constraint("Distance", 10, Q("10.272401 mm")),
    Sketcher.Constraint("Distance", 28, Q("2.089401 mm")),
    Sketcher.Constraint("Distance", 30, Q("2.089401 mm")),
    Sketcher.Constraint("Distance", 32, Q("10.272401 mm")),
    Sketcher.Constraint("Distance", 49, Q("2.089401 mm")),
    Sketcher.Constraint("Distance", 51, Q("2.089401 mm")),
    Sketcher.Constraint("Distance", 53, Q("10.272401 mm")),
    Sketcher.Constraint("DistanceX", 3, 2, 3, 1, Q("1.585592 mm")),
    Sketcher.Constraint("DistanceX", 14, 2, 14, 1, Q("2.154192 mm")),
    Sketcher.Constraint("DistanceX", 23, 2, 23, 1, Q("0.892969 mm")),
    Sketcher.Constraint("DistanceX", 25, 2, 25, 1, Q("1.585592 mm")),
    Sketcher.Constraint("DistanceX", 46, 2, 46, 1, Q("1.585592 mm")),
    Sketcher.Constraint("DistanceY", 0, 2, 0, 1, Q("19.741178 mm")),
    Sketcher.Constraint("DistanceX", 3, 2, -1, 1, Q("21.999298 mm")),
    Sketcher.Constraint("DistanceX", 25, 2, -1, 1, Q("2.949298 mm")),
    Sketcher.Constraint("DistanceX", 16, 2, 28, 2, Q("8.742698 mm")),
    Sketcher.Constraint("DistanceY", 49, 2, 44, 2, Q("1.3032 mm")),
    Sketcher.Constraint("Distance", 11, Q("3.601519 mm")),
    Sketcher.Constraint("Distance", 13, Q("3.601519 mm")),
    Sketcher.Constraint("Distance", 33, Q("3.601519 mm")),
    Sketcher.Constraint("Distance", 35, Q("3.601519 mm")),
    Sketcher.Constraint("Distance", 54, Q("3.601519 mm")),
    Sketcher.Constraint("Distance", 56, Q("3.601519 mm")),
    Sketcher.Constraint("DistanceX", 7, 1, 7, 2, Q("4.150015 mm")),
    Sketcher.Constraint("DistanceX", 9, 1, 9, 2, Q("1.826007 mm")),
    Sketcher.Constraint("DistanceX", 12, 2, 12, 1, Q("2.854447 mm")),
    Sketcher.Constraint("DistanceX", 29, 1, 29, 2, Q("4.150015 mm")),
    Sketcher.Constraint("DistanceX", 31, 1, 31, 2, Q("1.826007 mm")),
    Sketcher.Constraint("DistanceX", 34, 2, 34, 1, Q("2.854447 mm")),
    Sketcher.Constraint("DistanceX", 38, 1, 38, 2, Q("1.709615 mm")),
    Sketcher.Constraint("DistanceX", 41, 1, 41, 2, Q("1.551247 mm")),
    Sketcher.Constraint("DistanceX", 43, 2, 43, 1, Q("1.709615 mm")),
    Sketcher.Constraint("DistanceX", 50, 1, 50, 2, Q("4.150015 mm")),
    Sketcher.Constraint("DistanceX", 52, 1, 52, 2, Q("1.826007 mm")),
    Sketcher.Constraint("DistanceX", 55, 2, 55, 1, Q("2.854447 mm")),
    Sketcher.Constraint("DistanceY", 39, 1, 39, 2, Q("6.248873 mm")),
    Sketcher.Constraint("DistanceY", 44, 2, 44, 1, Q("6.267954 mm")),
    Sketcher.Constraint("DistanceX", 1, 2, -1, 1, Q("16.127579 mm")),
    Sketcher.Constraint("DistanceX", 4, 2, -1, 1, Q("25.847841 mm")),
    Sketcher.Constraint("DistanceY", -1, 1, 11, 2, Q("13.663462 mm")),
    Sketcher.Constraint("DistanceX", 12, 2, -1, 1, Q("22.63468 mm")),
    Sketcher.Constraint("DistanceY", -1, 1, 33, 2, Q("13.663462 mm")),
    Sketcher.Constraint("DistanceX", 34, 2, -1, 1, Q("3.58468 mm")),
    Sketcher.Constraint("DistanceX", -1, 1, 38, 2, Q("5.596871 mm")),
    Sketcher.Constraint("DistanceX", -1, 1, 41, 2, Q("11.458409 mm")),
    Sketcher.Constraint("DistanceX", -1, 1, 47, 2, Q("12.740621 mm")),
    Sketcher.Constraint("DistanceX", -1, 1, 54, 2, Q("18.808229 mm")),
    Sketcher.Constraint("DistanceY", -1, 1, 54, 2, Q("13.663462 mm")),
])
pad4 = body.newObject("PartDesign::Pad", "Pad003")
pad4.Profile = sketch4
pad4.Length = 1

doc.recompute()
